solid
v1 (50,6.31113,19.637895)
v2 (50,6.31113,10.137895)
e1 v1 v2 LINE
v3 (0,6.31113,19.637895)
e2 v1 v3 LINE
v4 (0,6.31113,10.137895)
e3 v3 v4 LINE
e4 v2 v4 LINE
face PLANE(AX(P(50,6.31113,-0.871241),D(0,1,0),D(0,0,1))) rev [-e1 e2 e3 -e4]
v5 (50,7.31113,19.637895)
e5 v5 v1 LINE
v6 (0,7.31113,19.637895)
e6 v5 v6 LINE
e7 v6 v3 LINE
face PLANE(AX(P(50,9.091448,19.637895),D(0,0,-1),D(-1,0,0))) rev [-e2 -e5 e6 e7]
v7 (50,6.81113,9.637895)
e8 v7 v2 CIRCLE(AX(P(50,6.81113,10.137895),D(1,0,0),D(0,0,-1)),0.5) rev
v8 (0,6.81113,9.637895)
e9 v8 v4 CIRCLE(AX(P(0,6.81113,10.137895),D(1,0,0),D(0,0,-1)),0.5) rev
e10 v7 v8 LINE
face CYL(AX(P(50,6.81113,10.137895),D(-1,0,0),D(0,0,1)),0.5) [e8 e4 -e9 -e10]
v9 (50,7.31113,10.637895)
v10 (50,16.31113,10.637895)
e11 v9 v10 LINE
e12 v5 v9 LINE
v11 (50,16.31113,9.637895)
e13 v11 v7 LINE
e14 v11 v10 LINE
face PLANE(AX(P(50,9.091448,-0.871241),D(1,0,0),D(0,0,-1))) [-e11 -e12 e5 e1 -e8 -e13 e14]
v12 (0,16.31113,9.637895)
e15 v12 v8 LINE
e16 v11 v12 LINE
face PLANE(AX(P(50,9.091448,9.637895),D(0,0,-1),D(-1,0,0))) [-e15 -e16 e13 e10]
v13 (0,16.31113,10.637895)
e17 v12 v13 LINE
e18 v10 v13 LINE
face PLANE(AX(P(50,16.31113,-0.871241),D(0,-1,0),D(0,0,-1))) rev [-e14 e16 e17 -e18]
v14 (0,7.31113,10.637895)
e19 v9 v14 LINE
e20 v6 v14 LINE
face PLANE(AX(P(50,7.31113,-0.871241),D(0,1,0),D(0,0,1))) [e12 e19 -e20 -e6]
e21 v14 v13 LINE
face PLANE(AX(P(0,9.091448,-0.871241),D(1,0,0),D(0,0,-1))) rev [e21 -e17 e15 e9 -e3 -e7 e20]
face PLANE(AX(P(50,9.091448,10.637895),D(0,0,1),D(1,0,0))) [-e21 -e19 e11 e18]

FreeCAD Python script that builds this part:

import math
import FreeCAD as App
import Part
import Sketcher
Q = App.Units.Quantity

doc = App.newDocument("Part")
body = doc.addObject("PartDesign::Body", "Body")

sketch1 = body.newObject("Sketcher::SketchObject", "Sketch")
sketch1.AttachmentSupport = (doc.getObject("YZ_Plane"), [""])
sketch1.MapMode = "FlatFace"
sketch1.addGeometry(Part.LineSegment(App.Vector(7.3, 19.6, 0), App.Vector(6.3, 19.6, 0)), False)
sketch1.addGeometry(Part.LineSegment(App.Vector(6.3, 19.6, 0), App.Vector(6.3, 10.1, 0)), False)
sketch1.addGeometry(Part.ArcOfCircle(Part.Circle(App.Vector(6.8, 10.1, 0), App.Vector(0, 0, 1), 0.5), math.radians(-180), math.radians(-90)), False)
sketch1.addGeometry(Part.LineSegment(App.Vector(6.8, 9.6, 0), App.Vector(16.3, 9.6, 0)), False)
sketch1.addGeometry(Part.LineSegment(App.Vector(16.3, 9.6, 0), App.Vector(16.3, 10.6, 0)), False)
sketch1.addGeometry(Part.LineSegment(App.Vector(16.3, 10.6, 0), App.Vector(7.3, 10.6, 0)), False)
sketch1.addGeometry(Part.LineSegment(App.Vector(7.3, 10.6, 0), App.Vector(7.3, 19.6, 0)), False)
sketch1.addConstraint(Sketcher.Constraint("Coincident", 0, 2, 1, 1))
sketch1.addConstraint(Sketcher.Constraint("Tangent", 1, 2, 2, 1))
sketch1.addConstraint(Sketcher.Constraint("Tangent", 2, 2, 3, 1))
sketch1.addConstraint(Sketcher.Constraint("Coincident", 3, 2, 4, 1))
sketch1.addConstraint(Sketcher.Constraint("Coincident", 4, 2, 5, 1))
sketch1.addConstraint(Sketcher.Constraint("Coincident", 5, 2, 6, 1))
sketch1.addConstraint(Sketcher.Constraint("Coincident", 6, 2, 0, 1))
sketch1.addConstraint(Sketcher.Constraint("Horizontal", 0))
sketch1.addConstraint(Sketcher.Constraint("Vertical", 1))
sketch1.addConstraint(Sketcher.Constraint("Horizontal", 3))
sketch1.addConstraint(Sketcher.Constraint("Vertical", 4))
sketch1.addConstraint(Sketcher.Constraint("Horizontal", 5))
sketch1.addConstraint(Sketcher.Constraint("Vertical", 6))
sketch1.addConstraint(Sketcher.Constraint("Equal", 3, 1))
sketch1.addConstraint(Sketcher.Constraint("Equal", 0, 4))
sketch1.addConstraint(Sketcher.Constraint("Radius", 2, Q("0.5 mm")))
sketch1.addConstraint(Sketcher.Constraint("DistanceX", 0, 2, 0, 1, Q("1 mm")))
sketch1.addConstraint(Sketcher.Constraint("DistanceX", 5, 2, 5, 1, Q("9 mm")))
sketch1.addConstraint(Sketcher.Constraint("DistanceX", -1, 1, 2, 3, Q("6.81113 mm")))
sketch1.addConstraint(Sketcher.Constraint("DistanceY", -1, 1, 2, 3, Q("10.137895 mm")))
pad1 = body.newObject("PartDesign::Pad", "Pad")
pad1.Profile = sketch1
pad1.Length = 50

doc.recompute()
